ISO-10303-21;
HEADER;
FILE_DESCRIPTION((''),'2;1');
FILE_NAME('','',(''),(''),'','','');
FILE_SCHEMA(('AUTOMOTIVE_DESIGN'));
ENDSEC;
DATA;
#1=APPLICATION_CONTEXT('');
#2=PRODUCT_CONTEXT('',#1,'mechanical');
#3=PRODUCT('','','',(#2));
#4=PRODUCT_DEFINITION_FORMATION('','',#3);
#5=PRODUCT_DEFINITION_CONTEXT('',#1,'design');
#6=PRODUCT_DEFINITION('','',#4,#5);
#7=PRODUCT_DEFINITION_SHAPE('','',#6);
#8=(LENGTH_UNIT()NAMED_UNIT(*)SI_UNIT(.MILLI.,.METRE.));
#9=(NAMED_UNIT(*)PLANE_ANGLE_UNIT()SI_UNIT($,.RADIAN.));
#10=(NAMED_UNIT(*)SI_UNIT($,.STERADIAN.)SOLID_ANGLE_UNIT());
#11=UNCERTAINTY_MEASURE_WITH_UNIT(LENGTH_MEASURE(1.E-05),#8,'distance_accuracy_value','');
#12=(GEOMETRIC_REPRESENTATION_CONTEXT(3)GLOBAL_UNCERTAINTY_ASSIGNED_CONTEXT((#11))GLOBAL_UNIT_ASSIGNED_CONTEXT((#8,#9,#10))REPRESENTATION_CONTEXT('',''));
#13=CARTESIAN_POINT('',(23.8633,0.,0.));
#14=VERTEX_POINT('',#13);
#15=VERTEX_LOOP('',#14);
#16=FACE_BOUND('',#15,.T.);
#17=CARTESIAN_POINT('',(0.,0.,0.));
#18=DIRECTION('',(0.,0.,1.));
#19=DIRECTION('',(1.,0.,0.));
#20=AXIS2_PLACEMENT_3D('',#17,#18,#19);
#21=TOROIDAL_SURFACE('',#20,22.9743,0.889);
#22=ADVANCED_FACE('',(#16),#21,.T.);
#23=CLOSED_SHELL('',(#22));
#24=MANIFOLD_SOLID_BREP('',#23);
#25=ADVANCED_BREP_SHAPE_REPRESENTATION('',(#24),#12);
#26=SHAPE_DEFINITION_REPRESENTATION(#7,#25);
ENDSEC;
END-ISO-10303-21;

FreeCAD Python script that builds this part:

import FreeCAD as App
import Part
import Sketcher

V = App.Vector
Q = App.Units.Quantity

doc = App.newDocument("Part")
body = doc.addObject("PartDesign::Body", "Body")

# Sketch on YZ plane
sketch1 = body.newObject("Sketcher::SketchObject", "Sketch")
sketch1.AttachmentSupport = (doc.getObject("YZ_Plane"), [""])
sketch1.MapMode = "FlatFace"
sketch1.addGeometry(Part.Circle(V(-23, 0, 0), V(0, 0, 1), 0.9), False)
sketch1.addConstraint(Sketcher.Constraint("PointOnObject", 0, 3, -1))
sketch1.addConstraint(Sketcher.Constraint("Diameter", 0, Q("0.07 in")))
sketch1.addConstraint(Sketcher.Constraint("DistanceX", 0, 3, -1, 1, Q("0.9045 in")))
revolution = body.newObject("PartDesign::Revolution", "Revolution")
revolution.Profile = sketch1
revolution.ReferenceAxis = (sketch1, ["V_Axis"])
revolution.Angle = 360

doc.recompute()
